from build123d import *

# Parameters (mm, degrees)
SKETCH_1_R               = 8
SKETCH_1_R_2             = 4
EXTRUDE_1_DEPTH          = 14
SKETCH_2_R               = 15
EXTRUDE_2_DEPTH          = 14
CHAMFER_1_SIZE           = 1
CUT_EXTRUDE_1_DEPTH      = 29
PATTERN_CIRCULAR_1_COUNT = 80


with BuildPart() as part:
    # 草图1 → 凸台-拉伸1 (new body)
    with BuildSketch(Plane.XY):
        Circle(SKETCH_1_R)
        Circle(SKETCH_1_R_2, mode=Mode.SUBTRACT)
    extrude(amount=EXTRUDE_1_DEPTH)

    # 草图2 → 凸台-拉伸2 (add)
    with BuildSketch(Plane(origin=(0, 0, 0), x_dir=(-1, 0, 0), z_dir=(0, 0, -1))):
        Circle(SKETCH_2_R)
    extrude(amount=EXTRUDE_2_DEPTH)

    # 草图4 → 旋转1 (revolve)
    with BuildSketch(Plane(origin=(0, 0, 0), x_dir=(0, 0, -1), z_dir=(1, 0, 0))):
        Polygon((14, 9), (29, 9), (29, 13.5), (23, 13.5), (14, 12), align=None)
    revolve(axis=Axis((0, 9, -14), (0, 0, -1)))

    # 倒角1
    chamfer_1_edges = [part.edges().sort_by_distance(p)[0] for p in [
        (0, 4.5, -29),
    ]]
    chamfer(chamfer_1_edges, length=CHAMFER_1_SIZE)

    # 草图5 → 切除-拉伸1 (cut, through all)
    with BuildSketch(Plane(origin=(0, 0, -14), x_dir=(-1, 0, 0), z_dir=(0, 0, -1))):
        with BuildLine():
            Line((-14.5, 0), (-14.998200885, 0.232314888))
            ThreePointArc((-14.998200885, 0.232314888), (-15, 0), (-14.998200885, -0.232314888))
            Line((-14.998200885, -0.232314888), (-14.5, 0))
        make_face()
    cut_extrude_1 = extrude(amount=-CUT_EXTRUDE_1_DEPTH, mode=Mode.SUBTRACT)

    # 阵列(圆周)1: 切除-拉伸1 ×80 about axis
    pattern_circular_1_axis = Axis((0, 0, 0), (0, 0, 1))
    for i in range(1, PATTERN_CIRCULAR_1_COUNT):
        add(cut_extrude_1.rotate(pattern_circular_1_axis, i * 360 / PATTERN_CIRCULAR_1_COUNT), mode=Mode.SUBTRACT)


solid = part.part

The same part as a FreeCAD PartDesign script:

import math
import FreeCAD as App
import Part
import Sketcher
from FreeCAD import Vector
Q = App.Units.Quantity


def edges_at(feature, points):
    """Names of the edges that pass closest to the given points."""
    edges = feature.Shape.Edges
    near = lambda p: min(range(len(edges)), key=lambda i: edges[i].distToShape(Part.Vertex(*p))[0])
    return sorted({f"Edge{near(p) + 1}" for p in points})

doc = App.newDocument("Part")
body = doc.addObject("PartDesign::Body", "Body")

# Sketch on XY plane
sketch1 = body.newObject("Sketcher::SketchObject", "Sketch")
sketch1.AttachmentSupport = (doc.getObject("XY_Plane"), [""])
sketch1.MapMode = "FlatFace"
sketch1.addGeometry([
    Part.Circle(Vector(0, 0, 0), Vector(0, 0, 1), 8),
    Part.Circle(Vector(0, 0, 0), Vector(0, 0, 1), 4),
], False)
sketch1.addConstraint([
    Sketcher.Constraint("Coincident", 0, 3, -1, 1),
    Sketcher.Constraint("Coincident", 1, 3, -1, 1),
    Sketcher.Constraint("Diameter", 0, Q("16 mm")),
    Sketcher.Constraint("Diameter", 1, Q("8 mm")),
])
pad1 = body.newObject("PartDesign::Pad", "Pad")
pad1.Profile = sketch1
pad1.Length = 14

# Sketch on XY plane
sketch2 = body.newObject("Sketcher::SketchObject", "Sketch001")
sketch2.AttachmentSupport = (doc.getObject("XY_Plane"), [""])
sketch2.MapMode = "FlatFace"
sketch2.addGeometry(Part.Circle(Vector(0, 0, 0), Vector(0, 0, 1), 15), False)
sketch2.addConstraint([
    Sketcher.Constraint("Coincident", 0, 3, -1, 1),
    Sketcher.Constraint("Diameter", 0, Q("30 mm")),
])
pad2 = body.newObject("PartDesign::Pad", "Pad001")
pad2.Profile = sketch2
pad2.Length = 14
pad2.Reversed = True

# Sketch on YZ plane
sketch3 = body.newObject("Sketcher::SketchObject", "Sketch002")
sketch3.AttachmentSupport = (doc.getObject("YZ_Plane"), [""])
sketch3.MapMode = "FlatFace"
sketch3.addGeometry([
    Part.LineSegment(Vector(9, -14, 0), Vector(9, -29, 0)),  # 0
    Part.LineSegment(Vector(9, -29, 0), Vector(13.5, -29, 0)),  # 1
    Part.LineSegment(Vector(13.5, -29, 0), Vector(13.5, -23, 0)),  # 2
    Part.LineSegment(Vector(13.5, -23, 0), Vector(12, -14, 0)),  # 3
    Part.LineSegment(Vector(12, -14, 0), Vector(9, -14, 0)),  # 4
], False)
sketch3.addGeometry(Part.LineSegment(Vector(9, -14, 0), Vector(9, -29, 0)), True)  # axis
sketch3.addConstraint([
    Sketcher.Constraint("Coincident", 0, 2, 1, 1),
    Sketcher.Constraint("Coincident", 1, 2, 2, 1),
    Sketcher.Constraint("Coincident", 2, 2, 3, 1),
    Sketcher.Constraint("Coincident", 3, 2, 4, 1),
    Sketcher.Constraint("Coincident", 4, 2, 0, 1),
    Sketcher.Constraint("Vertical", 0),
    Sketcher.Constraint("Horizontal", 1),
    Sketcher.Constraint("Vertical", 2),
    Sketcher.Constraint("Horizontal", 4),
    Sketcher.Constraint("Vertical", 5),
    Sketcher.Constraint("Coincident", 5, 1, 4, 2),
    Sketcher.Constraint("Horizontal", 1, 2, 5, 2),
    Sketcher.Constraint("DistanceX", 4, 2, 4, 1, Q("3 mm")),
    Sketcher.Constraint("DistanceY", 0, 2, 0, 1, Q("15 mm")),
    Sketcher.Constraint("DistanceY", 2, 1, 2, 2, Q("6 mm")),
    Sketcher.Constraint("DistanceX", 1, 1, 1, 2, Q("4.5 mm")),
    Sketcher.Constraint("DistanceX", -1, 1, 0, 2, Q("9 mm")),
    Sketcher.Constraint("DistanceY", 0, 2, -1, 1, Q("29 mm")),
])
revolution = body.newObject("PartDesign::Revolution", "Revolution")
revolution.Profile = sketch3
revolution.ReferenceAxis = (sketch3, ["Axis0"])
revolution.Angle = 360
doc.recompute()

chamfer = body.newObject("PartDesign::Chamfer", "Chamfer")
chamfer.Base = (revolution, edges_at(revolution, [(0, 4.5, -29)]))
chamfer.Size = 1

# Sketch on XY plane
sketch4 = body.newObject("Sketcher::SketchObject", "Sketch003")
sketch4.AttachmentSupport = (doc.getObject("XY_Plane"), [""])
sketch4.MapMode = "FlatFace"
sketch4.AttachmentOffset = App.Placement(Vector(0, 0, -14), App.Rotation())
sketch4.addGeometry([
    Part.LineSegment(Vector(14.5, 0, 0), Vector(15, 0.23, 0)),
    Part.ArcOfCircle(Part.Circle(Vector(0, 0, 0), Vector(0, 0, 1), 15), math.radians(-0.89), math.radians(0.89)),
    Part.LineSegment(Vector(15, -0.23, 0), Vector(14.5, 0, 0)),
], False)
sketch4.addConstraint([
    Sketcher.Constraint("Coincident", 0, 2, 1, 2),
    Sketcher.Constraint("Coincident", 1, 1, 2, 1),
    Sketcher.Constraint("Coincident", 2, 2, 0, 1),
    Sketcher.Constraint("Coincident", 1, 3, -1, 1),
    Sketcher.Constraint("PointOnObject", 2, 2, -1),
    Sketcher.Constraint("Vertical", 0, 2, 1, 1),
    Sketcher.Constraint("Radius", 1, Q("14.999998 mm")),
    Sketcher.Constraint("Angle", 0, Q("25 deg")),
    Sketcher.Constraint("DistanceX", -1, 1, 2, 2, Q("14.5 mm")),
])
pocket1 = body.newObject("PartDesign::Pocket", "Pocket")
pocket1.Profile = sketch4
pocket1.Type = "ThroughAll"
pocket1.Reversed = True
doc.recompute()

polarpattern = body.newObject("PartDesign::PolarPattern", "PolarPattern")
polarpattern.Originals = [pocket1]
polarpattern.Axis = (doc.getObject("Z_Axis"), [""])
polarpattern.Angle = 360
polarpattern.Occurrences = 80
body.Tip = polarpattern

doc.recompute()
